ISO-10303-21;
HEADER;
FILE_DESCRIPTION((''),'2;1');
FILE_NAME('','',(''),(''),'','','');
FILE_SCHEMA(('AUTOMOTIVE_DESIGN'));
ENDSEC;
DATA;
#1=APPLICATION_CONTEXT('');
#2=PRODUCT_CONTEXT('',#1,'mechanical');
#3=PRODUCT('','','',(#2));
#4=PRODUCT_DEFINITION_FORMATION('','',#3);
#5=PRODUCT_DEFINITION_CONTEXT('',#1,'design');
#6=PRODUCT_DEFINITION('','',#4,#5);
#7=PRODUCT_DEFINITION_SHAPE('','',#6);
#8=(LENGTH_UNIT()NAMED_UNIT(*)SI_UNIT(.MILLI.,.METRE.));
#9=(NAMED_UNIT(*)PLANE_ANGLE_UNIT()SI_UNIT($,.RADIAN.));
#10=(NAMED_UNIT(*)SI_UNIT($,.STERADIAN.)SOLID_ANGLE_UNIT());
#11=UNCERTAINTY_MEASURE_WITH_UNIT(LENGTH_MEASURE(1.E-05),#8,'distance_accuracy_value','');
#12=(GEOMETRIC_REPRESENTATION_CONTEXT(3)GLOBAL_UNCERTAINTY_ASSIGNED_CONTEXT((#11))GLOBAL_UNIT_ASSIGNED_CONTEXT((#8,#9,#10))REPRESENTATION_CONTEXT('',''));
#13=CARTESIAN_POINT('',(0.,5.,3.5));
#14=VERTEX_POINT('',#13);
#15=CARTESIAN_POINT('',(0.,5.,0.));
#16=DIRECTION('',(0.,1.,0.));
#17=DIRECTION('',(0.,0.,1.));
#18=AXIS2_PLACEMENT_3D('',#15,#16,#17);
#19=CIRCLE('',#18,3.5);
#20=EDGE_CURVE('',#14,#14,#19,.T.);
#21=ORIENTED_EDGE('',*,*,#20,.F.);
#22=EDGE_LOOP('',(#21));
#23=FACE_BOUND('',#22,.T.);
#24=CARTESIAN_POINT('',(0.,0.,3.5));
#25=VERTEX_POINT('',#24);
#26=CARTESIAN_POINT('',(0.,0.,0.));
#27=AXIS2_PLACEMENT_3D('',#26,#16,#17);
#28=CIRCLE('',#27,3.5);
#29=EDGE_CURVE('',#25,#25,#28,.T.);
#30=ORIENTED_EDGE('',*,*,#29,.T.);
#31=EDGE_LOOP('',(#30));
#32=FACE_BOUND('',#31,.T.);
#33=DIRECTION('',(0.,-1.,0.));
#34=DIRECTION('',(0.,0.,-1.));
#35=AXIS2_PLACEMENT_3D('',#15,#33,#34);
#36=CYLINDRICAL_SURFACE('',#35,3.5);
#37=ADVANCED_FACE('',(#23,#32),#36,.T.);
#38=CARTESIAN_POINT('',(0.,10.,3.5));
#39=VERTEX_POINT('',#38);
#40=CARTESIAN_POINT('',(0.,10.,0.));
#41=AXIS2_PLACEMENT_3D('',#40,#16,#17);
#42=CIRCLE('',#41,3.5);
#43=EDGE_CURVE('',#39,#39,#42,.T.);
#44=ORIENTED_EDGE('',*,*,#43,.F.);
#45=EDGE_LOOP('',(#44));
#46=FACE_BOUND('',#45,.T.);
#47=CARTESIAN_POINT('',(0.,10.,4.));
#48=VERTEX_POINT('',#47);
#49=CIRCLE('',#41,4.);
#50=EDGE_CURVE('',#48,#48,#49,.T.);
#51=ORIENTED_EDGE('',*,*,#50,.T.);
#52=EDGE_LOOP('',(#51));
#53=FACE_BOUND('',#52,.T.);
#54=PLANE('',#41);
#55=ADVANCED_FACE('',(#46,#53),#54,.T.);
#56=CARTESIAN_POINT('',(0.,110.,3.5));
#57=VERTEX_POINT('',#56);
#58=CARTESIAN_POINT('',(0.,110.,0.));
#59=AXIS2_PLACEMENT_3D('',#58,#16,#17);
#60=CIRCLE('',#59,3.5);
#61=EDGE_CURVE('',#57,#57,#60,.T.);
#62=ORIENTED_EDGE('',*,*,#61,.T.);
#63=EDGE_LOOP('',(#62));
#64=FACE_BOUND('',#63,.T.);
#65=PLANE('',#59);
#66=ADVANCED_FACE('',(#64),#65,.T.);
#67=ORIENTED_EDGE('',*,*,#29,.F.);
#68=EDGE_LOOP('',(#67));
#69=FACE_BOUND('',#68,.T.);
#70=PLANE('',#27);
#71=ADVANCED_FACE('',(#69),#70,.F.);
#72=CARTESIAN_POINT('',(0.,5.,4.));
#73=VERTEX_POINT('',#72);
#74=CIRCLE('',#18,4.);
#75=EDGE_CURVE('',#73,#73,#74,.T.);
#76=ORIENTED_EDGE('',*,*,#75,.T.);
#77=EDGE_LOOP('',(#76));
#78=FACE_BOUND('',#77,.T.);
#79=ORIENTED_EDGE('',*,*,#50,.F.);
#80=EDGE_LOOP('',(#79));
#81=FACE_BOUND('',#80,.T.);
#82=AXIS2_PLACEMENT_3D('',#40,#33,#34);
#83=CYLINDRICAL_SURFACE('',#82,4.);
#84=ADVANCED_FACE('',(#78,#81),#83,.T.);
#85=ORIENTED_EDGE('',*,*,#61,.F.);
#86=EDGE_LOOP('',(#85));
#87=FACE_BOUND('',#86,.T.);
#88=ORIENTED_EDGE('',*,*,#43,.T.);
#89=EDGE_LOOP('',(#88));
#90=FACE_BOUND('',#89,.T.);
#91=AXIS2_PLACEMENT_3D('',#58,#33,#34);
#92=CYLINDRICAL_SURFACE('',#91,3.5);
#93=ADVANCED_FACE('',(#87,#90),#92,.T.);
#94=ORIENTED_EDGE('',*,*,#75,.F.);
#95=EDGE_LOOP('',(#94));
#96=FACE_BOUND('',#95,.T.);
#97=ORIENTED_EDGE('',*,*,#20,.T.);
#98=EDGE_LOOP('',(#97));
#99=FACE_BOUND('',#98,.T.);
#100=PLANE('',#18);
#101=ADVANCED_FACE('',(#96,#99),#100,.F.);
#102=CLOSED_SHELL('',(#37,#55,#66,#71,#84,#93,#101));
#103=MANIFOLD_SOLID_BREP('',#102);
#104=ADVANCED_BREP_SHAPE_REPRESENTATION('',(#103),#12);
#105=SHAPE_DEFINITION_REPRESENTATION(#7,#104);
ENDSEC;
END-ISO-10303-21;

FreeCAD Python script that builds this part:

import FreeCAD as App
import Part
import Sketcher
Q = App.Units.Quantity

doc = App.newDocument("Part")
body = doc.addObject("PartDesign::Body", "Body")

# Sketch on XZ plane
sketch1 = doc.addObject("Sketcher::SketchObject", "Sketch")
body.addObject(sketch1)
sketch1.AttachmentSupport = (doc.XZ_Plane, [""])
sketch1.MapMode = "FlatFace"
sketch1.addGeometry(Part.Circle(App.Vector(0, 0, 0), App.Vector(0, 0, 1), 3.5), False)
sketch1.addConstraint([
    Sketcher.Constraint("Coincident", 0, 3, -1, 1),
    Sketcher.Constraint("Diameter", 0, Q("7 mm")),
])
pad1 = doc.addObject("PartDesign::Pad", "Pad")
body.addObject(pad1)
pad1.Profile = sketch1
pad1.Length = 5
pad1.Reversed = True

# Sketch on XZ plane
sketch2 = doc.addObject("Sketcher::SketchObject", "Sketch001")
body.addObject(sketch2)
sketch2.AttachmentSupport = (doc.XZ_Plane, [""])
sketch2.MapMode = "FlatFace"
sketch2.AttachmentOffset = App.Placement(App.Vector(0, 0, -5), App.Rotation())
sketch2.addGeometry(Part.Circle(App.Vector(0, 0, 0), App.Vector(0, 0, 1), 4), False)
sketch2.addConstraint([
    Sketcher.Constraint("Coincident", 0, 3, -1, 1),
    Sketcher.Constraint("Diameter", 0, Q("8 mm")),
])
pad2 = doc.addObject("PartDesign::Pad", "Pad001")
body.addObject(pad2)
pad2.Profile = sketch2
pad2.Length = 5
pad2.Reversed = True

# Sketch on XZ plane
sketch3 = doc.addObject("Sketcher::SketchObject", "Sketch002")
body.addObject(sketch3)
sketch3.AttachmentSupport = (doc.XZ_Plane, [""])
sketch3.MapMode = "FlatFace"
sketch3.AttachmentOffset = App.Placement(App.Vector(0, 0, -10), App.Rotation())
sketch3.addGeometry(Part.Circle(App.Vector(0, 0, 0), App.Vector(0, 0, 1), 3.5), False)
sketch3.addConstraint([
    Sketcher.Constraint("Coincident", 0, 3, -1, 1),
    Sketcher.Constraint("Diameter", 0, Q("7 mm")),
])
pad3 = doc.addObject("PartDesign::Pad", "Pad002")
body.addObject(pad3)
pad3.Profile = sketch3
pad3.Length = 100
pad3.Reversed = True

doc.recompute()
